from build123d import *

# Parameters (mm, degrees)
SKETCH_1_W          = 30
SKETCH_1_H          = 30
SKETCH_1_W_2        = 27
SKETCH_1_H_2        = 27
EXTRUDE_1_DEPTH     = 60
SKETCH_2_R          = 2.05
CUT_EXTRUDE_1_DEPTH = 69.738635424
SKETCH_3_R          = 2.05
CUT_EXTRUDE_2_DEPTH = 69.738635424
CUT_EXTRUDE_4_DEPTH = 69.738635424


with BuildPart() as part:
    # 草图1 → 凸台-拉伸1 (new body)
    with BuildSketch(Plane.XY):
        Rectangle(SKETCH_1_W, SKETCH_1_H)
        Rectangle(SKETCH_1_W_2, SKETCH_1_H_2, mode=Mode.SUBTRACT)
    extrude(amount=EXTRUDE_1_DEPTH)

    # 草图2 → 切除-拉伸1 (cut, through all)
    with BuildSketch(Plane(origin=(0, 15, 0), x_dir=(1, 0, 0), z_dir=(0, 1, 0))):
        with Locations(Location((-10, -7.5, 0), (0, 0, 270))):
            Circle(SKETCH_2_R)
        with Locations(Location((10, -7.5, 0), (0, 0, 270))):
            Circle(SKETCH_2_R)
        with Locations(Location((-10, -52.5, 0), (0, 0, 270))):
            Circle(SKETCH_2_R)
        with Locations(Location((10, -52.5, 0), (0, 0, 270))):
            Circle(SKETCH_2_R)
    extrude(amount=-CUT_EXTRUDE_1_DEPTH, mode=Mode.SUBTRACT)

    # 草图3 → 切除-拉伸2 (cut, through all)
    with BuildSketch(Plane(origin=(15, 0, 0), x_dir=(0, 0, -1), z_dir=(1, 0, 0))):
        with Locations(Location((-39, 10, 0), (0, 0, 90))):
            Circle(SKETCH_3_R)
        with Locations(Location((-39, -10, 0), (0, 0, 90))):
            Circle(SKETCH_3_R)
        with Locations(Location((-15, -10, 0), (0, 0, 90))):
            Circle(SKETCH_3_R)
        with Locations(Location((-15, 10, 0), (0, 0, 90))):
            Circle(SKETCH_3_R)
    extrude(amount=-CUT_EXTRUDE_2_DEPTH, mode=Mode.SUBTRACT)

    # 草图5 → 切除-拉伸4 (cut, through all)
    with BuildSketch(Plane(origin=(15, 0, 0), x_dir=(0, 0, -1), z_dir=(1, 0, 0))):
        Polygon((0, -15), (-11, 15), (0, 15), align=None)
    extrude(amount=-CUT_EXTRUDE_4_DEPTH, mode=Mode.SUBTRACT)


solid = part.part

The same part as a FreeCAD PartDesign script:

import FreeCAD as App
import Part
import Sketcher
from FreeCAD import Vector
Q = App.Units.Quantity

doc = App.newDocument("Part")
body = doc.addObject("PartDesign::Body", "Body")

# Sketch on XY plane
sketch1 = body.newObject("Sketcher::SketchObject", "Sketch")
sketch1.AttachmentSupport = (doc.getObject("XY_Plane"), [""])
sketch1.MapMode = "FlatFace"
sketch1.addGeometry(Part.LineSegment(Vector(-15, 15, 0), Vector(-15, -15, 0)), False)
sketch1.addGeometry(Part.LineSegment(Vector(-15, -15, 0), Vector(15, -15, 0)), False)
sketch1.addGeometry(Part.LineSegment(Vector(15, -15, 0), Vector(15, 15, 0)), False)
sketch1.addGeometry(Part.LineSegment(Vector(15, 15, 0), Vector(-15, 15, 0)), False)
sketch1.addGeometry(Part.LineSegment(Vector(14, -14, 0), Vector(-14, -14, 0)), False)
sketch1.addGeometry(Part.LineSegment(Vector(-14, -14, 0), Vector(-14, 14, 0)), False)
sketch1.addGeometry(Part.LineSegment(Vector(-14, 14, 0), Vector(14, 14, 0)), False)
sketch1.addGeometry(Part.LineSegment(Vector(14, 14, 0), Vector(14, -14, 0)), False)
sketch1.addConstraint(Sketcher.Constraint("Coincident", 0, 2, 1, 1))
sketch1.addConstraint(Sketcher.Constraint("Coincident", 1, 2, 2, 1))
sketch1.addConstraint(Sketcher.Constraint("Coincident", 2, 2, 3, 1))
sketch1.addConstraint(Sketcher.Constraint("Coincident", 3, 2, 0, 1))
sketch1.addConstraint(Sketcher.Constraint("Coincident", 4, 2, 5, 1))
sketch1.addConstraint(Sketcher.Constraint("Coincident", 5, 2, 6, 1))
sketch1.addConstraint(Sketcher.Constraint("Coincident", 6, 2, 7, 1))
sketch1.addConstraint(Sketcher.Constraint("Coincident", 7, 2, 4, 1))
sketch1.addConstraint(Sketcher.Constraint("Vertical", 0))
sketch1.addConstraint(Sketcher.Constraint("Horizontal", 1))
sketch1.addConstraint(Sketcher.Constraint("Vertical", 2))
sketch1.addConstraint(Sketcher.Constraint("Horizontal", 3))
sketch1.addConstraint(Sketcher.Constraint("Horizontal", 4))
sketch1.addConstraint(Sketcher.Constraint("Vertical", 5))
sketch1.addConstraint(Sketcher.Constraint("Horizontal", 6))
sketch1.addConstraint(Sketcher.Constraint("Vertical", 7))
sketch1.addConstraint(Sketcher.Constraint("Symmetric", 0, 2, 2, 2, -1, 1))
sketch1.addConstraint(Sketcher.Constraint("Symmetric", 4, 2, 6, 2, -1, 1))
sketch1.addConstraint(Sketcher.Constraint("Equal", 3, 0))
sketch1.addConstraint(Sketcher.Constraint("Equal", 6, 5))
sketch1.addConstraint(Sketcher.Constraint("DistanceX", 1, 1, 1, 2, Q("30 mm")))
sketch1.addConstraint(Sketcher.Constraint("DistanceX", 4, 2, 4, 1, Q("27 mm")))
pad1 = body.newObject("PartDesign::Pad", "Pad")
pad1.Profile = sketch1
pad1.Length = 60

# Sketch on XZ plane
sketch2 = body.newObject("Sketcher::SketchObject", "Sketch001")
sketch2.AttachmentSupport = (doc.getObject("XZ_Plane"), [""])
sketch2.MapMode = "FlatFace"
sketch2.AttachmentOffset = App.Placement(Vector(0, 0, -15), App.Rotation())
sketch2.addGeometry(Part.Circle(Vector(-10, 7.5, 0), Vector(0, 0, 1), 2), False)
sketch2.addGeometry(Part.Circle(Vector(10, 7.5, 0), Vector(0, 0, 1), 2), False)
sketch2.addGeometry(Part.Circle(Vector(-10, 52.5, 0), Vector(0, 0, 1), 2), False)
sketch2.addGeometry(Part.Circle(Vector(10, 52.5, 0), Vector(0, 0, 1), 2), False)
sketch2.addConstraint(Sketcher.Constraint("Equal", 0, 1))
sketch2.addConstraint(Sketcher.Constraint("Equal", 1, 2))
sketch2.addConstraint(Sketcher.Constraint("Equal", 2, 3))
sketch2.addConstraint(Sketcher.Constraint("Symmetric", 0, 3, 1, 3, -2))
sketch2.addConstraint(Sketcher.Constraint("Symmetric", 2, 3, 3, 3, -2))
sketch2.addConstraint(Sketcher.Constraint("Vertical", 0, 3, 2, 3))
sketch2.addConstraint(Sketcher.Constraint("Diameter", 0, Q("4.1 mm")))
sketch2.addConstraint(Sketcher.Constraint("DistanceX", 0, 3, -1, 1, Q("10 mm")))
sketch2.addConstraint(Sketcher.Constraint("DistanceY", 0, 3, 2, 3, Q("45 mm")))
sketch2.addConstraint(Sketcher.Constraint("DistanceY", -1, 1, 0, 3, Q("7.5 mm")))
pocket1 = body.newObject("PartDesign::Pocket", "Pocket")
pocket1.Profile = sketch2
pocket1.Type = "ThroughAll"
pocket1.Reversed = True

# Sketch on YZ plane
sketch3 = body.newObject("Sketcher::SketchObject", "Sketch002")
sketch3.AttachmentSupport = (doc.getObject("YZ_Plane"), [""])
sketch3.MapMode = "FlatFace"
sketch3.AttachmentOffset = App.Placement(Vector(0, 0, 15), App.Rotation())
sketch3.addGeometry(Part.Circle(Vector(10, 39, 0), Vector(0, 0, 1), 2), False)
sketch3.addGeometry(Part.Circle(Vector(-10, 39, 0), Vector(0, 0, 1), 2), False)
sketch3.addGeometry(Part.Circle(Vector(-10, 15, 0), Vector(0, 0, 1), 2), False)
sketch3.addGeometry(Part.Circle(Vector(10, 15, 0), Vector(0, 0, 1), 2), False)
sketch3.addConstraint(Sketcher.Constraint("Equal", 0, 1))
sketch3.addConstraint(Sketcher.Constraint("Equal", 1, 2))
sketch3.addConstraint(Sketcher.Constraint("Equal", 2, 3))
sketch3.addConstraint(Sketcher.Constraint("Symmetric", 0, 3, 1, 3, -2))
sketch3.addConstraint(Sketcher.Constraint("Symmetric", 2, 3, 3, 3, -2))
sketch3.addConstraint(Sketcher.Constraint("Vertical", 1, 3, 2, 3))
sketch3.addConstraint(Sketcher.Constraint("Diameter", 0, Q("4.1 mm")))
sketch3.addConstraint(Sketcher.Constraint("DistanceX", -1, 1, 0, 3, Q("10 mm")))
sketch3.addConstraint(Sketcher.Constraint("DistanceY", -1, 1, 0, 3, Q("39 mm")))
sketch3.addConstraint(Sketcher.Constraint("DistanceY", -1, 1, 2, 3, Q("15 mm")))
pocket2 = body.newObject("PartDesign::Pocket", "Pocket001")
pocket2.Profile = sketch3
pocket2.Type = "ThroughAll"

# Sketch on YZ plane
sketch4 = body.newObject("Sketcher::SketchObject", "Sketch003")
sketch4.AttachmentSupport = (doc.getObject("YZ_Plane"), [""])
sketch4.MapMode = "FlatFace"
sketch4.AttachmentOffset = App.Placement(Vector(0, 0, 15), App.Rotation())
sketch4.addGeometry(Part.LineSegment(Vector(15, 11, 0), Vector(-15, 0, 0)), False)
sketch4.addGeometry(Part.LineSegment(Vector(-15, 0, 0), Vector(15, 0, 0)), False)
sketch4.addGeometry(Part.LineSegment(Vector(15, 0, 0), Vector(15, 11, 0)), False)
sketch4.addConstraint(Sketcher.Constraint("Coincident", 0, 2, 1, 1))
sketch4.addConstraint(Sketcher.Constraint("Coincident", 1, 2, 2, 1))
sketch4.addConstraint(Sketcher.Constraint("Coincident", 2, 2, 0, 1))
sketch4.addConstraint(Sketcher.Constraint("Horizontal", 1))
sketch4.addConstraint(Sketcher.Constraint("Vertical", 2))
sketch4.addConstraint(Sketcher.Constraint("Symmetric", 0, 2, 1, 2, -1, 1))
sketch4.addConstraint(Sketcher.Constraint("DistanceX", 1, 1, 1, 2, Q("30 mm")))
sketch4.addConstraint(Sketcher.Constraint("DistanceY", 2, 1, 2, 2, Q("11 mm")))
pocket3 = body.newObject("PartDesign::Pocket", "Pocket002")
pocket3.Profile = sketch4
pocket3.Type = "ThroughAll"

doc.recompute()
